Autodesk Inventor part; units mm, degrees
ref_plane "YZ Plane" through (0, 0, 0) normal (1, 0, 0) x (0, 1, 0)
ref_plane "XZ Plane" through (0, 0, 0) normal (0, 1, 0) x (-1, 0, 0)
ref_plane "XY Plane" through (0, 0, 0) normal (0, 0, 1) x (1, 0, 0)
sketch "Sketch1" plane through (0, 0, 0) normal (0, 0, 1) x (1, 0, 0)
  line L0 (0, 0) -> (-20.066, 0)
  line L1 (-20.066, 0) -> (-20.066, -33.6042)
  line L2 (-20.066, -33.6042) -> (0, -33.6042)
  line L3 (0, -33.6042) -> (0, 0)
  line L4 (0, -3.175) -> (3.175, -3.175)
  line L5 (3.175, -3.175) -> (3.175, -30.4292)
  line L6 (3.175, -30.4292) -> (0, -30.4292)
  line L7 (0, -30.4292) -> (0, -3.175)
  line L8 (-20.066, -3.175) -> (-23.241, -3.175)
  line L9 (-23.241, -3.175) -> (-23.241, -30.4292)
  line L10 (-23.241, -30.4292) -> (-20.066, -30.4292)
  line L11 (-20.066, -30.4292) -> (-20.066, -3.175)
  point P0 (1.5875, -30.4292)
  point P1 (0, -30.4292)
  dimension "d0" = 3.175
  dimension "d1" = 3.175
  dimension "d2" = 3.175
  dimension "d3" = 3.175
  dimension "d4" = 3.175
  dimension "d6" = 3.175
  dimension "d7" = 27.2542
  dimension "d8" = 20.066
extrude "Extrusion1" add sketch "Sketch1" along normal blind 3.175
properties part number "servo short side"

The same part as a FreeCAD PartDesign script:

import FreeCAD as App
import Part
import Sketcher
Q = App.Units.Quantity


def add_polygon(sketch, points):
    """Adds a closed chain of lines whose ends are joined by coincident constraints."""
    first, n = sketch.GeometryCount, len(points)
    for a, b in zip(points, points[1:] + points[:1]):
        sketch.addGeometry(Part.LineSegment(App.Vector(*a, 0), App.Vector(*b, 0)), False)
    for i in range(n):
        sketch.addConstraint(Sketcher.Constraint("Coincident", first + i, 2, first + (i + 1) % n, 1))

doc = App.newDocument("Part")
params = doc.addObject("Spreadsheet::Sheet", "Params")
for row, (alias, value) in enumerate([
    ("sketch1_width", "0.79 in"),
    ("sketch1_width2", "0.125 in"),
    ("sketch1_height", "1.073 in"),
    ("pad1_length", "0.125 in"),
], start=1):
    params.set(f"A{row}", alias)
    params.set(f"B{row}", "=" + value)
    params.setAlias(f"B{row}", alias)

body = doc.addObject("PartDesign::Body", "Body")

sketch1 = body.newObject("Sketcher::SketchObject", "Sketch")
sketch1.AttachmentSupport = (doc.getObject("XY_Plane"), [""])
sketch1.MapMode = "FlatFace"
add_polygon(sketch1, [(0, -3.175), (0, 0), (-20.066, 0), (-20.066, -3.175), (-23.241, -3.175), (-23.241, -30.4292), (-20.066, -30.4292), (-20.066, -33.6042), (0, -33.6042), (0, -30.4292), (3.175, -30.4292), (3.175, -3.175)])
sketch1.addConstraint([
    Sketcher.Constraint("Vertical", 0),
    Sketcher.Constraint("Horizontal", 1),
    Sketcher.Constraint("Vertical", 2),
    Sketcher.Constraint("Horizontal", 3),
    Sketcher.Constraint("Vertical", 4),
    Sketcher.Constraint("Horizontal", 5),
    Sketcher.Constraint("Vertical", 6),
    Sketcher.Constraint("Horizontal", 7),
    Sketcher.Constraint("Vertical", 8),
    Sketcher.Constraint("Horizontal", 9),
    Sketcher.Constraint("Vertical", 10),
    Sketcher.Constraint("Horizontal", 11),
    Sketcher.Constraint("Coincident", 0, 2, -1, 1),
    Sketcher.Constraint("PointOnObject", 7, 2, -2),
    Sketcher.Constraint("Horizontal", 5, 2, 8, 2),
    Sketcher.Constraint("Horizontal", 3, 2, 10, 2),
    Sketcher.Constraint("Vertical", 2, 2, 5, 2),
    Sketcher.Constraint("Equal", 5, 9),
    Sketcher.Constraint("Equal", 11, 0),
    Sketcher.Constraint("Equal", 2, 6),
    Sketcher.Constraint("DistanceX", 1, 2, 1, 1, Q("0.79 in")),
    Sketcher.Constraint("DistanceX", 3, 2, 3, 1, Q("0.125 in")),
    Sketcher.Constraint("DistanceY", 4, 2, 4, 1, Q("1.073 in")),
])
sketch1.setExpression("Constraints[32]", "Params.sketch1_width")
sketch1.setExpression("Constraints[33]", "Params.sketch1_width2")
sketch1.setExpression("Constraints[34]", "Params.sketch1_height")
pad1 = body.newObject("PartDesign::Pad", "Pad")
pad1.Profile = sketch1
pad1.setExpression("Length", "Params.pad1_length")

doc.recompute()
